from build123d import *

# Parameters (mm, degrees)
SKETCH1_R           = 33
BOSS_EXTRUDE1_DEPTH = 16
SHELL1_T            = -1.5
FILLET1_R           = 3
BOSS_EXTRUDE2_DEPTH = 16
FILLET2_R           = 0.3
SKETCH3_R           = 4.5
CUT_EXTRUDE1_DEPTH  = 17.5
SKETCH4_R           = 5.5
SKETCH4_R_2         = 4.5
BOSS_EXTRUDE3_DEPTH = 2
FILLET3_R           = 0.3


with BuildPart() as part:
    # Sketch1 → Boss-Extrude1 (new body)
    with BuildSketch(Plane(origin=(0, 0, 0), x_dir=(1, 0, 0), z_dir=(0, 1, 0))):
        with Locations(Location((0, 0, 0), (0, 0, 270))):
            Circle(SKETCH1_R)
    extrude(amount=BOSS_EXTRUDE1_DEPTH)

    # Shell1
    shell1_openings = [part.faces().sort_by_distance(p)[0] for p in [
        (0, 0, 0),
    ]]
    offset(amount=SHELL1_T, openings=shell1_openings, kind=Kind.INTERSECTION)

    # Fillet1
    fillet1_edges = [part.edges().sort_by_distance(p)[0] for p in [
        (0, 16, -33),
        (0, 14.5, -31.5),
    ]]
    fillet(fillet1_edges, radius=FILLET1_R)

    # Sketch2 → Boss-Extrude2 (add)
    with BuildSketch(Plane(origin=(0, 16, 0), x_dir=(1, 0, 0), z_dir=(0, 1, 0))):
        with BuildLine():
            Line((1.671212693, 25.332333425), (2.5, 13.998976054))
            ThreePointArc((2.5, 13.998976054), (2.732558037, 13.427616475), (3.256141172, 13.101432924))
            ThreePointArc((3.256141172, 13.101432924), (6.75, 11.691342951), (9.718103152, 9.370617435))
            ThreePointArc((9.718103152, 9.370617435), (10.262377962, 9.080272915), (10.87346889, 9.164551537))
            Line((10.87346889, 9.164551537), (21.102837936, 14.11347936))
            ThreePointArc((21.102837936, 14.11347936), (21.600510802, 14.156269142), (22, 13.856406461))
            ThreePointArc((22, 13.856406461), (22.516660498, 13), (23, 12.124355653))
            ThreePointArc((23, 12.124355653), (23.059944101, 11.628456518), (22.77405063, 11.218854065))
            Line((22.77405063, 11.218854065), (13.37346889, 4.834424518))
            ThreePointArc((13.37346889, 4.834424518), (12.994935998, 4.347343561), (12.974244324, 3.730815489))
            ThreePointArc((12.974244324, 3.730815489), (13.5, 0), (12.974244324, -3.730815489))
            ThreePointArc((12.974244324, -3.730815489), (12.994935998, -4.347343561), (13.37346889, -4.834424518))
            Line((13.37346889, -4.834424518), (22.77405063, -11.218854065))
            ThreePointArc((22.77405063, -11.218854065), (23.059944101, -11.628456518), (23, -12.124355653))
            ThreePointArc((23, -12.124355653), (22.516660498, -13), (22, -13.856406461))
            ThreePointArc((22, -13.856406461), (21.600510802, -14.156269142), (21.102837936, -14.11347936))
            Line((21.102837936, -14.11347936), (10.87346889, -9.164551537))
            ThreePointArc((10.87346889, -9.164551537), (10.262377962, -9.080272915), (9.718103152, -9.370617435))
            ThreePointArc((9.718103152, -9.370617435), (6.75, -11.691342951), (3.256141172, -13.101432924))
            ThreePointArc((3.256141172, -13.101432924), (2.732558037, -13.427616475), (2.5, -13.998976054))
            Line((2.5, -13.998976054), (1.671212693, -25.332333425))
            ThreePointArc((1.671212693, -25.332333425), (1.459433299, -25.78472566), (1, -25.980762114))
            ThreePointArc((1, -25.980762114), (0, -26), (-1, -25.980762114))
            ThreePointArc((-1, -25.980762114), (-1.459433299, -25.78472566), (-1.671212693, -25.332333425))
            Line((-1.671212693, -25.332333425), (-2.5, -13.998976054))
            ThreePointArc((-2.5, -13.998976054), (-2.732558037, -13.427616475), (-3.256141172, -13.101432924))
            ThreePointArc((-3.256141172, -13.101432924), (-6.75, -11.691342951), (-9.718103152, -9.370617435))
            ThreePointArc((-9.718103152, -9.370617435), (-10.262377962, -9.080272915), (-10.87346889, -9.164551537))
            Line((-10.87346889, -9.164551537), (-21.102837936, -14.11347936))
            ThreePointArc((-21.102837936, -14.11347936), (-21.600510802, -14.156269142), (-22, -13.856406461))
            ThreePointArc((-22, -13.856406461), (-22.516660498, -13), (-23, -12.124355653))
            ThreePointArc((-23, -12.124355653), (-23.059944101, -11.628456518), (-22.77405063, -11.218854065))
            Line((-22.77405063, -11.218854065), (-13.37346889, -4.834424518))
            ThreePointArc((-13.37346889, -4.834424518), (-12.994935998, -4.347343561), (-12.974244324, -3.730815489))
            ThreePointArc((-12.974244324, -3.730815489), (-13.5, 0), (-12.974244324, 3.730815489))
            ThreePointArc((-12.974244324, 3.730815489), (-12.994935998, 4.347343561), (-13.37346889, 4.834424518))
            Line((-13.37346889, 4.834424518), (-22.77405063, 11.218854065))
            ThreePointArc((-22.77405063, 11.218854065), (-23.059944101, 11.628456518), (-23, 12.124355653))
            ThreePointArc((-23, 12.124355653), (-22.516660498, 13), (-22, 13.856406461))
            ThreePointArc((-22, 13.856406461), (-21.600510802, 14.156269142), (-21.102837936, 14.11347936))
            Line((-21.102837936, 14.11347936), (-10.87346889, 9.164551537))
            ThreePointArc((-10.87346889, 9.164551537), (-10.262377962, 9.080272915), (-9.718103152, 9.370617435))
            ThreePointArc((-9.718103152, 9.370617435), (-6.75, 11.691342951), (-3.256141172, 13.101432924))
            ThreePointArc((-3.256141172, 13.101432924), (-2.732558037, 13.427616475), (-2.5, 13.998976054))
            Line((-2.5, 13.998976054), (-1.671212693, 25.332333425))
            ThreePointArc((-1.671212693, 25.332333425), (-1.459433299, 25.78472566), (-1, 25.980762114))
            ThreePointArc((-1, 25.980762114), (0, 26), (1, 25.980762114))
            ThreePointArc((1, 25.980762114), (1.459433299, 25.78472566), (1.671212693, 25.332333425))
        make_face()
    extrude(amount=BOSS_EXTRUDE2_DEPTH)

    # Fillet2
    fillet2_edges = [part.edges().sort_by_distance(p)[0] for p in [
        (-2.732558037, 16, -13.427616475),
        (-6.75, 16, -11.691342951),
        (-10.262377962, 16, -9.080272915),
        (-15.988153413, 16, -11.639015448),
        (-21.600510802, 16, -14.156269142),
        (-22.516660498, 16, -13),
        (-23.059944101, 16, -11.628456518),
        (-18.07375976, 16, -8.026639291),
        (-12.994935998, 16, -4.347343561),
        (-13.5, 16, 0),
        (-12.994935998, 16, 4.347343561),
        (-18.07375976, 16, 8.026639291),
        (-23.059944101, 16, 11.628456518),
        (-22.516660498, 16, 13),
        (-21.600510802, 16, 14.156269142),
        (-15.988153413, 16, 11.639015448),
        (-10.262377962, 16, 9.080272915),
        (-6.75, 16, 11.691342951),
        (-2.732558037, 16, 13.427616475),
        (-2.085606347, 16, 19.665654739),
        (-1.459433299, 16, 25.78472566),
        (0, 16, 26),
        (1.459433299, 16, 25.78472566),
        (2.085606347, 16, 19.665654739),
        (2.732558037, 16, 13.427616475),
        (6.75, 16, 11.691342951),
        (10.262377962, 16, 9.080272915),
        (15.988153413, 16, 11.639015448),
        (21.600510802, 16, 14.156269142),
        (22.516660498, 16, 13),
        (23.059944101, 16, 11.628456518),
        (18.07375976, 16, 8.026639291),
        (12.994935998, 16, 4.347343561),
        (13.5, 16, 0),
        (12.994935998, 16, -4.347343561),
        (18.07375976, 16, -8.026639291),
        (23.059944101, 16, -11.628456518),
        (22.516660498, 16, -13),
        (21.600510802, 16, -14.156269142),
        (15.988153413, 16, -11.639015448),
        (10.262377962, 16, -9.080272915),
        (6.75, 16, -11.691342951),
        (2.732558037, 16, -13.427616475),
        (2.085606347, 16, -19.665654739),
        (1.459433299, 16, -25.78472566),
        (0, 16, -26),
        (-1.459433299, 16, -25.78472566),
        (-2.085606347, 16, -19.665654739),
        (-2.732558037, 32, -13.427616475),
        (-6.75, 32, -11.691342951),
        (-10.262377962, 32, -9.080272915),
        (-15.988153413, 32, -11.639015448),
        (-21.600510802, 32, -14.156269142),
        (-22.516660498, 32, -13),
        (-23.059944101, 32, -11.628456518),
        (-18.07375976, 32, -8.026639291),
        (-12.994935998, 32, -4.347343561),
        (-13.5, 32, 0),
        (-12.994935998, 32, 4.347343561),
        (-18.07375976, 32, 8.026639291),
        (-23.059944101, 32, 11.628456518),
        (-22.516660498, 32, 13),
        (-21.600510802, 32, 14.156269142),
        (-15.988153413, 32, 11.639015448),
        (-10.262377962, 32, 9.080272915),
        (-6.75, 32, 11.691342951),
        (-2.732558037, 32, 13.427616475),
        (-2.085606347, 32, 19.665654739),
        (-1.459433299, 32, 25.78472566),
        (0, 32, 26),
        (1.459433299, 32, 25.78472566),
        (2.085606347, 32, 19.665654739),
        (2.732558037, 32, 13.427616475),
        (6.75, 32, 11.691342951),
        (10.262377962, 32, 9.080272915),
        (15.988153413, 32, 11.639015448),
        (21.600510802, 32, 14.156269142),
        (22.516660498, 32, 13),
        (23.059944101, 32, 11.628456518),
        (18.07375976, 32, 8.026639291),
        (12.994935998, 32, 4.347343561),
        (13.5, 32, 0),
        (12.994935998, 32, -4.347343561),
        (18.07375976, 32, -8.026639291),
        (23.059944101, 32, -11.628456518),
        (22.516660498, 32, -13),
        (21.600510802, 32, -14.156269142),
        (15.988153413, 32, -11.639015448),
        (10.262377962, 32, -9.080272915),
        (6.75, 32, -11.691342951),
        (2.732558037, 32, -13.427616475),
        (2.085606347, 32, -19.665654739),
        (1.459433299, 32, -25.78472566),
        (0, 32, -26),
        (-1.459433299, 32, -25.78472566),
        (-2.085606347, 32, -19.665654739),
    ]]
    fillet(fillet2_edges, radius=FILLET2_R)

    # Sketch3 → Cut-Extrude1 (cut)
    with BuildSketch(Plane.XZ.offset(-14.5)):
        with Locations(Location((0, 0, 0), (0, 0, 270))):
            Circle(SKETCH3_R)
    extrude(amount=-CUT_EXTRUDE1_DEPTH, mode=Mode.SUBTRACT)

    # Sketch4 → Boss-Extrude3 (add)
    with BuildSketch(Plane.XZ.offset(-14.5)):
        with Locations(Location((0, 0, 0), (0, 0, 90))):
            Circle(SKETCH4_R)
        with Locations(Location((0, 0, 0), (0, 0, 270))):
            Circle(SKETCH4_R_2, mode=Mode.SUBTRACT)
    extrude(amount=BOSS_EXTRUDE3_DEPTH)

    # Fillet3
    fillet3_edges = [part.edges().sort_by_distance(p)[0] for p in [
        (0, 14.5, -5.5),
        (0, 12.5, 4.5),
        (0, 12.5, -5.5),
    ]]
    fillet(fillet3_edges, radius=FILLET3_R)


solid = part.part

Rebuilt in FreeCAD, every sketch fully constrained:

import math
import FreeCAD as App
import Part
import Sketcher

V = App.Vector


def edges_at(feature, points):
    """Names of the edges that pass closest to the given points."""
    edges = feature.Shape.Edges
    near = lambda p: min(range(len(edges)), key=lambda i: edges[i].distToShape(Part.Vertex(*p))[0])
    return sorted({f"Edge{near(p) + 1}" for p in points})


def faces_at(feature, points):
    """Names of the faces that lie closest to the given points."""
    faces = feature.Shape.Faces
    near = lambda p: min(range(len(faces)), key=lambda i: faces[i].distToShape(Part.Vertex(*p))[0])
    return sorted({f"Face{near(p) + 1}" for p in points})

doc = App.newDocument("Part")
body = doc.addObject("PartDesign::Body", "Body")

sketch1 = body.newObject("Sketcher::SketchObject", "Sketch")
sketch1.AttachmentSupport = (doc.getObject("XZ_Plane"), [""])
sketch1.MapMode = "FlatFace"
sketch1.addGeometry(Part.Circle(V(0, 0, 0), V(0, 0, 1), 33), False)
sketch1.addConstraint([
    Sketcher.Constraint("Coincident", 0, 3, -1, 1),
    Sketcher.Constraint("Diameter", 0, 66.0),
])
pad1 = body.newObject("PartDesign::Pad", "Pad")
pad1.Profile = sketch1
pad1.Length = 16
pad1.Reversed = True
doc.recompute()

thickness = body.newObject("PartDesign::Thickness", "Thickness")
thickness.Base = (pad1, faces_at(pad1, [(0, 0, 0)]))
thickness.Value = 1.5
thickness.Reversed = True
thickness.Join = "Intersection"
doc.recompute()

fillet = body.newObject("PartDesign::Fillet", "Fillet")
fillet.Base = (thickness, edges_at(thickness, [(0, 16, -33), (0, 14.5, -31.5)]))
fillet.Radius = 3

sketch2 = body.newObject("Sketcher::SketchObject", "Sketch001")
sketch2.AttachmentSupport = (doc.getObject("XZ_Plane"), [""])
sketch2.MapMode = "FlatFace"
sketch2.AttachmentOffset = App.Placement(V(0, 0, -16), App.Rotation())
sketch2.addGeometry([
    Part.LineSegment(V(2.5, -14, 0), V(1.7, -25.3, 0)),
    Part.ArcOfCircle(Part.Circle(V(1, -25.3, 0), V(0, 0, 1), 0.7), math.radians(-88), math.radians(-4)),
    Part.ArcOfCircle(Part.Circle(V(0, 0, 0), V(0, 0, 1), 26), math.radians(-92.2), math.radians(-87.8)),
    Part.ArcOfCircle(Part.Circle(V(-1, -25.3, 0), V(0, 0, 1), 0.7), math.radians(-176), math.radians(-92)),
    Part.LineSegment(V(-1.7, -25.3, 0), V(-2.5, -14, 0)),
    Part.ArcOfCircle(Part.Circle(V(-3.5, -14.1, 0), V(0, 0, 1), 1), math.radians(4), math.radians(76)),
    Part.ArcOfCircle(Part.Circle(V(0, 0, 0), V(0, 0, 1), 13.5), math.radians(-136), math.radians(-104)),
    Part.ArcOfCircle(Part.Circle(V(-10.4, -10.1, 0), V(0, 0, 1), 1), math.radians(44), math.radians(116)),
    Part.LineSegment(V(-10.9, -9.2, 0), V(-21.1, -14.1, 0)),
    Part.ArcOfCircle(Part.Circle(V(-21.4, -13.5, 0), V(0, 0, 1), 0.7), math.radians(-148), math.radians(-64)),
    Part.ArcOfCircle(Part.Circle(V(0, 0, 0), V(0, 0, 1), 26), math.radians(-152.2), math.radians(-147.8)),
    Part.ArcOfCircle(Part.Circle(V(-22.4, -11.8, 0), V(0, 0, 1), 0.7), math.radians(124), math.radians(208)),
    Part.LineSegment(V(-22.8, -11.2, 0), V(-13.4, -4.8, 0)),
    Part.ArcOfCircle(Part.Circle(V(-13.9, -4, 0), V(0, 0, 1), 1), math.radians(-56), math.radians(16)),
    Part.ArcOfCircle(Part.Circle(V(0, 0, 0), V(0, 0, 1), 13.5), math.radians(164), math.radians(196)),
    Part.ArcOfCircle(Part.Circle(V(-13.9, 4, 0), V(0, 0, 1), 1), math.radians(-16), math.radians(56)),
    Part.LineSegment(V(-13.4, 4.8, 0), V(-22.8, 11.2, 0)),
    Part.ArcOfCircle(Part.Circle(V(-22.4, 11.8, 0), V(0, 0, 1), 0.7), math.radians(152), math.radians(236)),
    Part.ArcOfCircle(Part.Circle(V(0, 0, 0), V(0, 0, 1), 26), math.radians(147.8), math.radians(152.2)),
    Part.ArcOfCircle(Part.Circle(V(-21.4, 13.5, 0), V(0, 0, 1), 0.7), math.radians(64), math.radians(148)),
    Part.LineSegment(V(-21.1, 14.1, 0), V(-10.9, 9.2, 0)),
    Part.ArcOfCircle(Part.Circle(V(-10.4, 10.1, 0), V(0, 0, 1), 1), math.radians(-116), math.radians(-44)),
    Part.ArcOfCircle(Part.Circle(V(0, 0, 0), V(0, 0, 1), 13.5), math.radians(104), math.radians(136)),
    Part.ArcOfCircle(Part.Circle(V(-3.5, 14.1, 0), V(0, 0, 1), 1), math.radians(-76), math.radians(-4)),
    Part.LineSegment(V(-2.5, 14, 0), V(-1.7, 25.3, 0)),
    Part.ArcOfCircle(Part.Circle(V(-1, 25.3, 0), V(0, 0, 1), 0.7), math.radians(92), math.radians(176)),
    Part.ArcOfCircle(Part.Circle(V(0, 0, 0), V(0, 0, 1), 26), math.radians(87.8), math.radians(92.2)),
    Part.ArcOfCircle(Part.Circle(V(1, 25.3, 0), V(0, 0, 1), 0.7), math.radians(4), math.radians(88)),
    Part.LineSegment(V(1.7, 25.3, 0), V(2.5, 14, 0)),
    Part.ArcOfCircle(Part.Circle(V(3.5, 14.1, 0), V(0, 0, 1), 1), math.radians(-176), math.radians(-104)),
    Part.ArcOfCircle(Part.Circle(V(0, 0, 0), V(0, 0, 1), 13.5), math.radians(44), math.radians(76)),
    Part.ArcOfCircle(Part.Circle(V(10.4, 10.1, 0), V(0, 0, 1), 1), math.radians(-136), math.radians(-64)),
    Part.LineSegment(V(10.9, 9.2, 0), V(21.1, 14.1, 0)),
    Part.ArcOfCircle(Part.Circle(V(21.4, 13.5, 0), V(0, 0, 1), 0.7), math.radians(32), math.radians(116)),
    Part.ArcOfCircle(Part.Circle(V(0, 0, 0), V(0, 0, 1), 26), math.radians(27.8), math.radians(32.2)),
    Part.ArcOfCircle(Part.Circle(V(22.4, 11.8, 0), V(0, 0, 1), 0.7), math.radians(-56), math.radians(28)),
    Part.LineSegment(V(22.8, 11.2, 0), V(13.4, 4.8, 0)),
    Part.ArcOfCircle(Part.Circle(V(13.9, 4, 0), V(0, 0, 1), 1), math.radians(124), math.radians(196)),
    Part.ArcOfCircle(Part.Circle(V(0, 0, 0), V(0, 0, 1), 13.5), math.radians(-16), math.radians(16)),
    Part.ArcOfCircle(Part.Circle(V(13.9, -4, 0), V(0, 0, 1), 1), math.radians(164), math.radians(236)),
    Part.LineSegment(V(13.4, -4.8, 0), V(22.8, -11.2, 0)),
    Part.ArcOfCircle(Part.Circle(V(22.4, -11.8, 0), V(0, 0, 1), 0.7), math.radians(-28), math.radians(56)),
    Part.ArcOfCircle(Part.Circle(V(0, 0, 0), V(0, 0, 1), 26), math.radians(-32.2), math.radians(-27.8)),
    Part.ArcOfCircle(Part.Circle(V(21.4, -13.5, 0), V(0, 0, 1), 0.7), math.radians(-116), math.radians(-32)),
    Part.LineSegment(V(21.1, -14.1, 0), V(10.9, -9.2, 0)),
    Part.ArcOfCircle(Part.Circle(V(10.4, -10.1, 0), V(0, 0, 1), 1), math.radians(64), math.radians(136)),
    Part.ArcOfCircle(Part.Circle(V(0, 0, 0), V(0, 0, 1), 13.5), math.radians(-76), math.radians(-44)),
    Part.ArcOfCircle(Part.Circle(V(3.5, -14.1, 0), V(0, 0, 1), 1), math.radians(104), math.radians(176)),
], False)
sketch2.addConstraint([
    Sketcher.Constraint("Tangent", 0, 2, 1, 2),
    Sketcher.Constraint("Tangent", 1, 1, 2, 2),
    Sketcher.Constraint("Tangent", 2, 1, 3, 2),
    Sketcher.Constraint("Tangent", 3, 1, 4, 1),
    Sketcher.Constraint("Tangent", 4, 2, 5, 1),
    Sketcher.Constraint("Tangent", 5, 2, 6, 2),
    Sketcher.Constraint("Tangent", 6, 1, 7, 1),
    Sketcher.Constraint("Tangent", 7, 2, 8, 1),
    Sketcher.Constraint("Tangent", 8, 2, 9, 2),
    Sketcher.Constraint("Tangent", 9, 1, 10, 2),
    Sketcher.Constraint("Tangent", 10, 1, 11, 2),
    Sketcher.Constraint("Tangent", 11, 1, 12, 1),
    Sketcher.Constraint("Tangent", 12, 2, 13, 1),
    Sketcher.Constraint("Tangent", 13, 2, 14, 2),
    Sketcher.Constraint("Tangent", 14, 1, 15, 1),
    Sketcher.Constraint("Tangent", 15, 2, 16, 1),
    Sketcher.Constraint("Tangent", 16, 2, 17, 2),
    Sketcher.Constraint("Tangent", 17, 1, 18, 2),
    Sketcher.Constraint("Tangent", 18, 1, 19, 2),
    Sketcher.Constraint("Tangent", 19, 1, 20, 1),
    Sketcher.Constraint("Tangent", 20, 2, 21, 1),
    Sketcher.Constraint("Tangent", 21, 2, 22, 2),
    Sketcher.Constraint("Tangent", 22, 1, 23, 1),
    Sketcher.Constraint("Tangent", 23, 2, 24, 1),
    Sketcher.Constraint("Tangent", 24, 2, 25, 2),
    Sketcher.Constraint("Tangent", 25, 1, 26, 2),
    Sketcher.Constraint("Tangent", 26, 1, 27, 2),
    Sketcher.Constraint("Tangent", 27, 1, 28, 1),
    Sketcher.Constraint("Tangent", 28, 2, 29, 1),
    Sketcher.Constraint("Tangent", 29, 2, 30, 2),
    Sketcher.Constraint("Tangent", 30, 1, 31, 1),
    Sketcher.Constraint("Tangent", 31, 2, 32, 1),
    Sketcher.Constraint("Tangent", 32, 2, 33, 2),
    Sketcher.Constraint("Tangent", 33, 1, 34, 2),
    Sketcher.Constraint("Tangent", 34, 1, 35, 2),
    Sketcher.Constraint("Tangent", 35, 1, 36, 1),
    Sketcher.Constraint("Tangent", 36, 2, 37, 1),
    Sketcher.Constraint("Tangent", 37, 2, 38, 2),
    Sketcher.Constraint("Tangent", 38, 1, 39, 1),
    Sketcher.Constraint("Tangent", 39, 2, 40, 1),
    Sketcher.Constraint("Tangent", 40, 2, 41, 2),
    Sketcher.Constraint("Tangent", 41, 1, 42, 2),
    Sketcher.Constraint("Tangent", 42, 1, 43, 2),
    Sketcher.Constraint("Tangent", 43, 1, 44, 1),
    Sketcher.Constraint("Tangent", 44, 2, 45, 1),
    Sketcher.Constraint("Tangent", 45, 2, 46, 2),
    Sketcher.Constraint("Tangent", 46, 1, 47, 1),
    Sketcher.Constraint("Tangent", 47, 2, 0, 1),
    Sketcher.Constraint("Coincident", 2, 3, -1, 1),
    Sketcher.Constraint("Coincident", 6, 3, -1, 1),
    Sketcher.Constraint("Coincident", 10, 3, -1, 1),
    Sketcher.Constraint("Coincident", 14, 3, -1, 1),
    Sketcher.Constraint("Coincident", 18, 3, -1, 1),
    Sketcher.Constraint("Coincident", 22, 3, -1, 1),
    Sketcher.Constraint("Coincident", 26, 3, -1, 1),
    Sketcher.Constraint("Coincident", 30, 3, -1, 1),
    Sketcher.Constraint("Coincident", 34, 3, -1, 1),
    Sketcher.Constraint("Coincident", 38, 3, -1, 1),
    Sketcher.Constraint("Coincident", 42, 3, -1, 1),
    Sketcher.Constraint("Coincident", 46, 3, -1, 1),
    Sketcher.Constraint("Equal", 1, 3),
    Sketcher.Constraint("Equal", 5, 7),
    Sketcher.Constraint("Equal", 3, 9),
    Sketcher.Constraint("Equal", 2, 10),
    Sketcher.Constraint("Equal", 9, 11),
    Sketcher.Constraint("Equal", 7, 13),
    Sketcher.Constraint("Equal", 6, 14),
    Sketcher.Constraint("Equal", 13, 15),
    Sketcher.Constraint("Equal", 11, 17),
    Sketcher.Constraint("Equal", 10, 18),
    Sketcher.Constraint("Equal", 17, 19),
    Sketcher.Constraint("Equal", 15, 21),
    Sketcher.Constraint("Equal", 14, 22),
    Sketcher.Constraint("Equal", 21, 23),
    Sketcher.Constraint("Equal", 19, 25),
    Sketcher.Constraint("Equal", 18, 26),
    Sketcher.Constraint("Equal", 25, 27),
    Sketcher.Constraint("Equal", 23, 29),
    Sketcher.Constraint("Equal", 22, 30),
    Sketcher.Constraint("Equal", 29, 31),
    Sketcher.Constraint("Equal", 27, 33),
    Sketcher.Constraint("Equal", 26, 34),
    Sketcher.Constraint("Equal", 33, 35),
    Sketcher.Constraint("Equal", 31, 37),
    Sketcher.Constraint("Equal", 30, 38),
    Sketcher.Constraint("Equal", 37, 39),
    Sketcher.Constraint("Equal", 35, 41),
    Sketcher.Constraint("Equal", 34, 42),
    Sketcher.Constraint("Equal", 41, 43),
    Sketcher.Constraint("Equal", 39, 45),
    Sketcher.Constraint("Equal", 38, 46),
    Sketcher.Constraint("Equal", 45, 47),
    Sketcher.Constraint("Symmetric", 0, 2, 24, 2, -1, 1),
    Sketcher.Constraint("Symmetric", 3, 1, 27, 1, -1, 1),
    Sketcher.Constraint("Symmetric", 7, 2, 31, 2, -1, 1),
    Sketcher.Constraint("Symmetric", 11, 1, 35, 1, -1, 1),
    Sketcher.Constraint("Symmetric", 15, 2, 39, 2, -1, 1),
    Sketcher.Constraint("Symmetric", 19, 1, 43, 1, -1, 1),
    Sketcher.Constraint("Symmetric", 0, 2, 3, 1, -2),
    Sketcher.Constraint("Symmetric", 20, 2, 31, 2, -2),
    Sketcher.Constraint("Symmetric", 16, 2, 35, 1, -2),
    Sketcher.Constraint("Equal", 4, 8),
    Sketcher.Constraint("Equal", 8, 12),
    Sketcher.Constraint("Radius", 2, 26.000001),
    Sketcher.Constraint("Radius", 5, 1.0),
    Sketcher.Constraint("Radius", 1, 0.7),
    Sketcher.Constraint("Radius", 6, 13.5),
    Sketcher.Constraint("DistanceX", -1, 1, 1, 1, 1.0),
    Sketcher.Constraint("DistanceX", 9, 1, -1, 1, 22.0),
    Sketcher.Constraint("DistanceX", 10, 1, -1, 1, 23.0),
    Sketcher.Constraint("DistanceX", 4, 2, -1, 1, 2.5),
])
pad2 = body.newObject("PartDesign::Pad", "Pad001")
pad2.Profile = sketch2
pad2.Length = 16
pad2.Reversed = True
doc.recompute()

fillet2 = body.newObject("PartDesign::Fillet", "Fillet001")
fillet2.Base = (pad2, edges_at(pad2, [
    (-2.733, 16, -13.428),
    (-6.75, 16, -11.691),
    (-10.262, 16, -9.08),
    (-15.988, 16, -11.639),
    (-21.601, 16, -14.156),
    (-22.517, 16, -13),
    (-23.06, 16, -11.628),
    (-18.074, 16, -8.027),
    (-12.995, 16, -4.347),
    (-13.5, 16, 0),
    (-12.995, 16, 4.347),
    (-18.074, 16, 8.027),
    (-23.06, 16, 11.628),
    (-22.517, 16, 13),
    (-21.601, 16, 14.156),
    (-15.988, 16, 11.639),
    (-10.262, 16, 9.08),
    (-6.75, 16, 11.691),
    (-2.733, 16, 13.428),
    (-2.086, 16, 19.666),
    (-1.459, 16, 25.785),
    (0, 16, 26),
    (1.459, 16, 25.785),
    (2.086, 16, 19.666),
    (2.733, 16, 13.428),
    (6.75, 16, 11.691),
    (10.262, 16, 9.08),
    (15.988, 16, 11.639),
    (21.601, 16, 14.156),
    (22.517, 16, 13),
    (23.06, 16, 11.628),
    (18.074, 16, 8.027),
    (12.995, 16, 4.347),
    (13.5, 16, 0),
    (12.995, 16, -4.347),
    (18.074, 16, -8.027),
    (23.06, 16, -11.628),
    (22.517, 16, -13),
    (21.601, 16, -14.156),
    (15.988, 16, -11.639),
    (10.262, 16, -9.08),
    (6.75, 16, -11.691),
    (2.733, 16, -13.428),
    (2.086, 16, -19.666),
    (1.459, 16, -25.785),
    (0, 16, -26),
    (-1.459, 16, -25.785),
    (-2.086, 16, -19.666),
    (-2.733, 32, -13.428),
    (-6.75, 32, -11.691),
    (-10.262, 32, -9.08),
    (-15.988, 32, -11.639),
    (-21.601, 32, -14.156),
    (-22.517, 32, -13),
    (-23.06, 32, -11.628),
    (-18.074, 32, -8.027),
    (-12.995, 32, -4.347),
    (-13.5, 32, 0),
    (-12.995, 32, 4.347),
    (-18.074, 32, 8.027),
    (-23.06, 32, 11.628),
    (-22.517, 32, 13),
    (-21.601, 32, 14.156),
    (-15.988, 32, 11.639),
    (-10.262, 32, 9.08),
    (-6.75, 32, 11.691),
    (-2.733, 32, 13.428),
    (-2.086, 32, 19.666),
    (-1.459, 32, 25.785),
    (0, 32, 26),
    (1.459, 32, 25.785),
    (2.086, 32, 19.666),
    (2.733, 32, 13.428),
    (6.75, 32, 11.691),
    (10.262, 32, 9.08),
    (15.988, 32, 11.639),
    (21.601, 32, 14.156),
    (22.517, 32, 13),
    (23.06, 32, 11.628),
    (18.074, 32, 8.027),
    (12.995, 32, 4.347),
    (13.5, 32, 0),
    (12.995, 32, -4.347),
    (18.074, 32, -8.027),
    (23.06, 32, -11.628),
    (22.517, 32, -13),
    (21.601, 32, -14.156),
    (15.988, 32, -11.639),
    (10.262, 32, -9.08),
    (6.75, 32, -11.691),
    (2.733, 32, -13.428),
    (2.086, 32, -19.666),
    (1.459, 32, -25.785),
    (0, 32, -26),
    (-1.459, 32, -25.785),
    (-2.086, 32, -19.666),
]))
fillet2.Radius = 0.3

sketch3 = body.newObject("Sketcher::SketchObject", "Sketch002")
sketch3.AttachmentSupport = (doc.getObject("XZ_Plane"), [""])
sketch3.MapMode = "FlatFace"
sketch3.AttachmentOffset = App.Placement(V(0, 0, -14.5), App.Rotation())
sketch3.addGeometry(Part.Circle(V(0, 0, 0), V(0, 0, 1), 4.5), False)
sketch3.addConstraint([
    Sketcher.Constraint("Coincident", 0, 3, -1, 1),
    Sketcher.Constraint("Diameter", 0, 9.0),
])
pocket1 = body.newObject("PartDesign::Pocket", "Pocket")
pocket1.Profile = sketch3
pocket1.Length = 17.5

sketch4 = body.newObject("Sketcher::SketchObject", "Sketch003")
sketch4.AttachmentSupport = (doc.getObject("XZ_Plane"), [""])
sketch4.MapMode = "FlatFace"
sketch4.AttachmentOffset = App.Placement(V(0, 0, -14.5), App.Rotation())
sketch4.addGeometry([
    Part.Circle(V(0, 0, 0), V(0, 0, 1), 5.5),
    Part.Circle(V(0, 0, 0), V(0, 0, 1), 4.5),
], False)
sketch4.addConstraint([
    Sketcher.Constraint("Coincident", 0, 3, -1, 1),
    Sketcher.Constraint("Coincident", 1, 3, -1, 1),
    Sketcher.Constraint("Diameter", 0, 11.0),
    Sketcher.Constraint("Diameter", 1, 9.0),
])
pad3 = body.newObject("PartDesign::Pad", "Pad002")
pad3.Profile = sketch4
pad3.Length = 2
doc.recompute()

fillet3 = body.newObject("PartDesign::Fillet", "Fillet002")
fillet3.Base = (pad3, edges_at(pad3, [(0, 14.5, -5.5), (0, 12.5, 4.5), (0, 12.5, -5.5)]))
fillet3.Radius = 0.3

doc.recompute()
